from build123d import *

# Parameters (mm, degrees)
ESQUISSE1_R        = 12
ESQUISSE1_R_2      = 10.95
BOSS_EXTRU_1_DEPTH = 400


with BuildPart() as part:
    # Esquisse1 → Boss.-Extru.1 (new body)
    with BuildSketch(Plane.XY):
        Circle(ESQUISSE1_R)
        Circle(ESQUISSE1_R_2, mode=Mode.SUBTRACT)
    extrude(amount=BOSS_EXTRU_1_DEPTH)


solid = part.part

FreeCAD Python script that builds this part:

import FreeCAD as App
import Part
import Sketcher
from FreeCAD import Vector
Q = App.Units.Quantity

doc = App.newDocument("Part")
body = doc.addObject("PartDesign::Body", "Body")

# Sketch on XY plane
sketch1 = body.newObject("Sketcher::SketchObject", "Sketch")
sketch1.AttachmentSupport = (doc.getObject("XY_Plane"), [""])
sketch1.MapMode = "FlatFace"
sketch1.addGeometry(Part.Circle(Vector(0, 0, 0), Vector(0, 0, 1), 12), False)
sketch1.addGeometry(Part.Circle(Vector(0, 0, 0), Vector(0, 0, 1), 11), False)
sketch1.addConstraint(Sketcher.Constraint("Coincident", 0, 3, -1, 1))
sketch1.addConstraint(Sketcher.Constraint("Coincident", 1, 3, -1, 1))
sketch1.addConstraint(Sketcher.Constraint("Diameter", 0, Q("24 mm")))
sketch1.addConstraint(Sketcher.Constraint("Diameter", 1, Q("21.9 mm")))
pad1 = body.newObject("PartDesign::Pad", "Pad")
pad1.Profile = sketch1
pad1.Length = 400

doc.recompute()
